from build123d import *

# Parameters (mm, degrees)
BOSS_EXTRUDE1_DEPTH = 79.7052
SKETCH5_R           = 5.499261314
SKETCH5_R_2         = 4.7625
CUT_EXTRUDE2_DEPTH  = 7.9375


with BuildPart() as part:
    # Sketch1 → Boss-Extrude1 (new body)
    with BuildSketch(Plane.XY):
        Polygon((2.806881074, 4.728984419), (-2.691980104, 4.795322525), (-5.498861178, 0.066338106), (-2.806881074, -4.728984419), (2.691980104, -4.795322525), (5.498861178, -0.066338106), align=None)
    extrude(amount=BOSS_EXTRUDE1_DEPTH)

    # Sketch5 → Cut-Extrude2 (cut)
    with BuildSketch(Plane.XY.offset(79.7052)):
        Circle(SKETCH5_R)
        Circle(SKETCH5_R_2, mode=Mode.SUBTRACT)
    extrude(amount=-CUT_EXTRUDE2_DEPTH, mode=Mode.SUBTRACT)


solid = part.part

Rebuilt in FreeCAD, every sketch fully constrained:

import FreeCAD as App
import Part
import Sketcher

V = App.Vector
Q = App.Units.Quantity

doc = App.newDocument("Part")
params = doc.addObject("Spreadsheet::Sheet", "Params")
for row, (alias, value) in enumerate([
    ("pad1_length", "3.138 in"),
    ("sketch2_diameter", "0.375 in"),
    ("pocket1_length", "0.3125 in"),
], start=1):
    params.set(f"A{row}", alias)
    params.set(f"B{row}", "=" + value)
    params.setAlias(f"B{row}", alias)

body = doc.addObject("PartDesign::Body", "Body")

# Sketch on XY plane
sketch1 = body.newObject("Sketcher::SketchObject", "Sketch")
sketch1.AttachmentSupport = (doc.getObject("XY_Plane"), [""])
sketch1.MapMode = "FlatFace"
sketch1.addGeometry([
    Part.LineSegment(V(2.806881, 4.728984, 0), V(-2.69198, 4.795323, 0)),  # 0
    Part.LineSegment(V(-2.69198, 4.795323, 0), V(-5.498861, 0.066338, 0)),  # 1
    Part.LineSegment(V(-5.498861, 0.066338, 0), V(-2.806881, -4.728984, 0)),  # 2
    Part.LineSegment(V(-2.806881, -4.728984, 0), V(2.69198, -4.795323, 0)),  # 3
    Part.LineSegment(V(2.69198, -4.795323, 0), V(5.498861, -0.066338, 0)),  # 4
    Part.LineSegment(V(5.498861, -0.066338, 0), V(2.806881, 4.728984, 0)),  # 5
], False)
sketch1.addConstraint([
    Sketcher.Constraint("Coincident", 0, 2, 1, 1),
    Sketcher.Constraint("Coincident", 1, 2, 2, 1),
    Sketcher.Constraint("Coincident", 2, 2, 3, 1),
    Sketcher.Constraint("Coincident", 3, 2, 4, 1),
    Sketcher.Constraint("Coincident", 4, 2, 5, 1),
    Sketcher.Constraint("Coincident", 5, 2, 0, 1),
    Sketcher.Constraint("Symmetric", 0, 2, 3, 2, -1, 1),
    Sketcher.Constraint("Symmetric", 1, 2, 4, 2, -1, 1),
    Sketcher.Constraint("Symmetric", 2, 2, 5, 2, -1, 1),
    Sketcher.Constraint("Equal", 0, 1),
    Sketcher.Constraint("Equal", 1, 2),
    Sketcher.Constraint("DistanceX", 2, 2, 0, 2, Q("0.114901 mm")),
    Sketcher.Constraint("Distance", 0, Q("5.499261 mm")),
    Sketcher.Constraint("DistanceX", 0, 2, -1, 1, Q("2.69198 mm")),
    Sketcher.Constraint("DistanceX", 1, 2, -1, 1, Q("5.498861 mm")),
])
pad1 = body.newObject("PartDesign::Pad", "Pad")
pad1.Profile = sketch1
pad1.setExpression("Length", "Params.pad1_length")

# Sketch on XY plane
sketch2 = body.newObject("Sketcher::SketchObject", "Sketch001")
sketch2.AttachmentSupport = (doc.getObject("XY_Plane"), [""])
sketch2.MapMode = "FlatFace"
sketch2.AttachmentOffset = App.Placement(V(0, 0, 3.138 * 25.4), App.Rotation())
sketch2.addGeometry([
    Part.Circle(V(0, 0, 0), V(0, 0, 1), 5.5),
    Part.Circle(V(0, 0, 0), V(0, 0, 1), 4.8),
], False)
sketch2.addConstraint([
    Sketcher.Constraint("Coincident", 0, 3, -1, 1),
    Sketcher.Constraint("Coincident", 1, 3, -1, 1),
    Sketcher.Constraint("Diameter", 1, Q("0.375 in")),
    Sketcher.Constraint("Diameter", 0, Q("10.998523 mm")),
])
sketch2.setExpression("Constraints[2]", "Params.sketch2_diameter")
pocket1 = body.newObject("PartDesign::Pocket", "Pocket")
pocket1.Profile = sketch2
pocket1.setExpression("Length", "Params.pocket1_length")

doc.recompute()
